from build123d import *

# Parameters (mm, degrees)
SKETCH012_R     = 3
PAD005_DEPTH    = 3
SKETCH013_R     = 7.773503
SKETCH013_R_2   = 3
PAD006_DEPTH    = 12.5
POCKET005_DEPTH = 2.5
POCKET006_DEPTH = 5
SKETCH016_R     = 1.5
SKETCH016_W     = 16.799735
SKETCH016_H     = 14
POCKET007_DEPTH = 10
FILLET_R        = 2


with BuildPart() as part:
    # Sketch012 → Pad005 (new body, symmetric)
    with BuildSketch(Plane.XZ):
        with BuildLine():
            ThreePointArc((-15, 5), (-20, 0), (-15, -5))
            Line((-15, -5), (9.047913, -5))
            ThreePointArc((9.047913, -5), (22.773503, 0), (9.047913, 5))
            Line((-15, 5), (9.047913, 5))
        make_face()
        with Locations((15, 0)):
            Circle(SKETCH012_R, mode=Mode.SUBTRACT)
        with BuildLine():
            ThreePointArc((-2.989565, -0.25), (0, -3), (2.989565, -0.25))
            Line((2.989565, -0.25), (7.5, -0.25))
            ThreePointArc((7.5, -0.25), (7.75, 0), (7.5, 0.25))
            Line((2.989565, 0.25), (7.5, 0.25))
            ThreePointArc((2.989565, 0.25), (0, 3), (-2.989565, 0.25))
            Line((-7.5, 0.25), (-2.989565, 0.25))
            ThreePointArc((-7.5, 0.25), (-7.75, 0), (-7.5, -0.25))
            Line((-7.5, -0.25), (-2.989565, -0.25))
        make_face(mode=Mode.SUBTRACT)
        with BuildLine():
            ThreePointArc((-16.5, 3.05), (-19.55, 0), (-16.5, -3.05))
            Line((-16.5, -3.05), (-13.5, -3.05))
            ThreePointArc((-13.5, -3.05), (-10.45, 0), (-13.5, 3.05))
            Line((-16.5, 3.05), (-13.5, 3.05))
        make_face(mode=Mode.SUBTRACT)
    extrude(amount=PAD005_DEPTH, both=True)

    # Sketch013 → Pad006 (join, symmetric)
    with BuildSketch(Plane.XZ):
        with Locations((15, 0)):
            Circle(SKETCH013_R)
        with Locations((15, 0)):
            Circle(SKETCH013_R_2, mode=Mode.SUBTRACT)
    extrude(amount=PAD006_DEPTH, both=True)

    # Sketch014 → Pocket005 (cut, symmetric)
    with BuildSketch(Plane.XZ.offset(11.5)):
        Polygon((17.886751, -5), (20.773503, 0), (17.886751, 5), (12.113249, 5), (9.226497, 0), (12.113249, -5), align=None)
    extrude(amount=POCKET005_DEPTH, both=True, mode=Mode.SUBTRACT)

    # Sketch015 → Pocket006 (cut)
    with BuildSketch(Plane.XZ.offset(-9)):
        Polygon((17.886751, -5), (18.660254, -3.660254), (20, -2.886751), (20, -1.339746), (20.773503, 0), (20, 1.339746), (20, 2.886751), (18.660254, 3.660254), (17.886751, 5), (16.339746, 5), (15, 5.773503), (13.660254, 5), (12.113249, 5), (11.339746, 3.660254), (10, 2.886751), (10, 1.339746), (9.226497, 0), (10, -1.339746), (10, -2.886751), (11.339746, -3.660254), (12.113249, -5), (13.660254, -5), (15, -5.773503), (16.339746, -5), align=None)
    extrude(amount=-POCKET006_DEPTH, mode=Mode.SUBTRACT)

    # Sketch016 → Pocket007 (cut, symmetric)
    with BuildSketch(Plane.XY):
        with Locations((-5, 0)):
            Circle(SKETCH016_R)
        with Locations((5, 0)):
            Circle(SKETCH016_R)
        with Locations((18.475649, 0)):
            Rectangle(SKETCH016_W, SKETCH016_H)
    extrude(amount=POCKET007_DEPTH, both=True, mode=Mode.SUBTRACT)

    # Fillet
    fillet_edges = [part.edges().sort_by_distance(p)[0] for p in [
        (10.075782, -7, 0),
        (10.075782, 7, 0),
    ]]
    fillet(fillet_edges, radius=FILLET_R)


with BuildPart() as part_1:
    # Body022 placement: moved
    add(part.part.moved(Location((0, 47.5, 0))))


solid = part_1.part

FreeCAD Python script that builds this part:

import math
import FreeCAD as App
import Part
import Sketcher
Q = App.Units.Quantity


def edges_at(feature, points):
    """Names of the edges that pass closest to the given points."""
    edges = feature.Shape.Edges
    near = lambda p: min(range(len(edges)), key=lambda i: edges[i].distToShape(Part.Vertex(*p))[0])
    return sorted({f"Edge{near(p) + 1}" for p in points})


def add_polygon(sketch, points):
    """Adds a closed chain of lines whose ends are joined by coincident constraints."""
    first, n = sketch.GeometryCount, len(points)
    for a, b in zip(points, points[1:] + points[:1]):
        sketch.addGeometry(Part.LineSegment(App.Vector(*a, 0), App.Vector(*b, 0)), False)
    for i in range(n):
        sketch.addConstraint(Sketcher.Constraint("Coincident", first + i, 2, first + (i + 1) % n, 1))

doc = App.newDocument("Part")
body = doc.addObject("PartDesign::Body", "Body")

# Sketch on XZ plane
sketch1 = doc.addObject("Sketcher::SketchObject", "Sketch")
body.addObject(sketch1)
sketch1.AttachmentSupport = (doc.XZ_Plane, [""])
sketch1.MapMode = "FlatFace"
sketch1.addGeometry(Part.ArcOfCircle(Part.Circle(App.Vector(-15, 0, 0), App.Vector(0, 0, 1), 5), math.radians(90), math.radians(270)), False)
sketch1.addGeometry(Part.LineSegment(App.Vector(-15, -5, 0), App.Vector(9.05, -5, 0)), False)
sketch1.addGeometry(Part.ArcOfCircle(Part.Circle(App.Vector(15, 0, 0), App.Vector(0, 0, 1), 7.77), math.radians(-140), math.radians(140)), False)
sketch1.addGeometry(Part.LineSegment(App.Vector(9.05, 5, 0), App.Vector(-15, 5, 0)), False)
sketch1.addGeometry(Part.ArcOfCircle(Part.Circle(App.Vector(0, 0, 0), App.Vector(0, 0, 1), 3), math.radians(-175), math.radians(-5)), False)
sketch1.addGeometry(Part.LineSegment(App.Vector(-2.99, -0.25, 0), App.Vector(-7.5, -0.25, 0)), False)
sketch1.addGeometry(Part.ArcOfCircle(Part.Circle(App.Vector(-7.5, 0, 0), App.Vector(0, 0, 1), 0.25), math.radians(90), math.radians(270)), False)
sketch1.addGeometry(Part.LineSegment(App.Vector(-7.5, 0.25, 0), App.Vector(-2.99, 0.25, 0)), False)
sketch1.addGeometry(Part.ArcOfCircle(Part.Circle(App.Vector(0, 0, 0), App.Vector(0, 0, 1), 3), math.radians(5), math.radians(175)), False)
sketch1.addGeometry(Part.LineSegment(App.Vector(2.99, 0.25, 0), App.Vector(7.5, 0.25, 0)), False)
sketch1.addGeometry(Part.ArcOfCircle(Part.Circle(App.Vector(7.5, 0, 0), App.Vector(0, 0, 1), 0.25), math.radians(-90), math.radians(90)), False)
sketch1.addGeometry(Part.LineSegment(App.Vector(7.5, -0.25, 0), App.Vector(2.99, -0.25, 0)), False)
sketch1.addGeometry(Part.ArcOfCircle(Part.Circle(App.Vector(-16.5, 0, 0), App.Vector(0, 0, 1), 3.05), math.radians(90), math.radians(270)), False)
sketch1.addGeometry(Part.LineSegment(App.Vector(-16.5, 3.05, 0), App.Vector(-13.5, 3.05, 0)), False)
sketch1.addGeometry(Part.ArcOfCircle(Part.Circle(App.Vector(-13.5, 0, 0), App.Vector(0, 0, 1), 3.05), math.radians(-90), math.radians(90)), False)
sketch1.addGeometry(Part.LineSegment(App.Vector(-13.5, -3.05, 0), App.Vector(-16.5, -3.05, 0)), False)
sketch1.addGeometry(Part.Circle(App.Vector(15, 0, 0), App.Vector(0, 0, 1), 3), False)
sketch1.addConstraint(Sketcher.Constraint("Tangent", 0, 2, 1, 1))
sketch1.addConstraint(Sketcher.Constraint("Coincident", 1, 2, 2, 1))
sketch1.addConstraint(Sketcher.Constraint("Coincident", 2, 2, 3, 1))
sketch1.addConstraint(Sketcher.Constraint("Tangent", 3, 2, 0, 1))
sketch1.addConstraint(Sketcher.Constraint("Coincident", 4, 1, 5, 1))
sketch1.addConstraint(Sketcher.Constraint("Tangent", 5, 2, 6, 2))
sketch1.addConstraint(Sketcher.Constraint("Tangent", 6, 1, 7, 1))
sketch1.addConstraint(Sketcher.Constraint("Coincident", 7, 2, 8, 2))
sketch1.addConstraint(Sketcher.Constraint("Coincident", 8, 1, 9, 1))
sketch1.addConstraint(Sketcher.Constraint("Tangent", 9, 2, 10, 2))
sketch1.addConstraint(Sketcher.Constraint("Tangent", 10, 1, 11, 1))
sketch1.addConstraint(Sketcher.Constraint("Coincident", 11, 2, 4, 2))
sketch1.addConstraint(Sketcher.Constraint("Tangent", 12, 1, 13, 1))
sketch1.addConstraint(Sketcher.Constraint("Tangent", 13, 2, 14, 2))
sketch1.addConstraint(Sketcher.Constraint("Tangent", 14, 1, 15, 1))
sketch1.addConstraint(Sketcher.Constraint("Tangent", 15, 2, 12, 2))
sketch1.addConstraint(Sketcher.Constraint("Horizontal", 1))
sketch1.addConstraint(Sketcher.Constraint("Horizontal", 3))
sketch1.addConstraint(Sketcher.Constraint("Horizontal", 5))
sketch1.addConstraint(Sketcher.Constraint("Horizontal", 7))
sketch1.addConstraint(Sketcher.Constraint("Horizontal", 9))
sketch1.addConstraint(Sketcher.Constraint("Horizontal", 11))
sketch1.addConstraint(Sketcher.Constraint("Horizontal", 13))
sketch1.addConstraint(Sketcher.Constraint("Horizontal", 15))
sketch1.addConstraint(Sketcher.Constraint("Coincident", 4, 3, -1, 1))
sketch1.addConstraint(Sketcher.Constraint("Coincident", 8, 3, -1, 1))
sketch1.addConstraint(Sketcher.Constraint("Coincident", 16, 3, 2, 3))
sketch1.addConstraint(Sketcher.Constraint("Equal", 4, 8))
sketch1.addConstraint(Sketcher.Constraint("Equal", 6, 10))
sketch1.addConstraint(Sketcher.Constraint("Equal", 8, 16))
sketch1.addConstraint(Sketcher.Constraint("Symmetric", 0, 3, 2, 3, -1, 1))
sketch1.addConstraint(Sketcher.Constraint("Symmetric", 6, 3, 10, 3, -1, 1))
sketch1.addConstraint(Sketcher.Constraint("PointOnObject", 0, 3, -1))
sketch1.addConstraint(Sketcher.Constraint("PointOnObject", 6, 3, -1))
sketch1.addConstraint(Sketcher.Constraint("PointOnObject", 12, 3, -1))
sketch1.addConstraint(Sketcher.Constraint("Diameter", 16, Q("6 mm")))
sketch1.addConstraint(Sketcher.Constraint("Radius", 0, Q("5 mm")))
sketch1.addConstraint(Sketcher.Constraint("DistanceX", 13, 1, 13, 2, Q("3 mm")))
sketch1.addConstraint(Sketcher.Constraint("Radius", 6, Q("0.25 mm")))
sketch1.addConstraint(Sketcher.Constraint("Radius", 12, Q("3.05 mm")))
sketch1.addConstraint(Sketcher.Constraint("DistanceX", 0, 3, -1, 1, Q("15 mm")))
sketch1.addConstraint(Sketcher.Constraint("DistanceX", 6, 3, 10, 3, Q("15 mm")))
sketch1.addConstraint(Sketcher.Constraint("DistanceX", 12, 3, 6, 3, Q("9 mm")))
sketch1.addConstraint(Sketcher.Constraint("Radius", 2, Q("7.773503 mm")))
pad1 = doc.addObject("PartDesign::Pad", "Pad")
body.addObject(pad1)
pad1.Profile = sketch1
pad1.Length = 6
pad1.Midplane = True

# Sketch on XZ plane
sketch2 = doc.addObject("Sketcher::SketchObject", "Sketch001")
body.addObject(sketch2)
sketch2.AttachmentSupport = (doc.XZ_Plane, [""])
sketch2.MapMode = "FlatFace"
sketch2.addGeometry(Part.Circle(App.Vector(15, 0, 0), App.Vector(0, 0, 1), 7.8), False)
sketch2.addGeometry(Part.Circle(App.Vector(15, 0, 0), App.Vector(0, 0, 1), 3), False)
sketch2.addConstraint(Sketcher.Constraint("Coincident", 1, 3, 0, 3))
sketch2.addConstraint(Sketcher.Constraint("PointOnObject", 0, 3, -1))
sketch2.addConstraint(Sketcher.Constraint("Diameter", 1, Q("6 mm")))
sketch2.addConstraint(Sketcher.Constraint("DistanceX", -1, 1, 0, 3, Q("15 mm")))
sketch2.addConstraint(Sketcher.Constraint("Diameter", 0, Q("15.547006 mm")))
pad2 = doc.addObject("PartDesign::Pad", "Pad001")
body.addObject(pad2)
pad2.Profile = sketch2
pad2.Length = 25
pad2.Midplane = True

# Sketch on XZ plane
sketch3 = doc.addObject("Sketcher::SketchObject", "Sketch002")
body.addObject(sketch3)
sketch3.AttachmentSupport = (doc.XZ_Plane, [""])
sketch3.MapMode = "FlatFace"
sketch3.AttachmentOffset = App.Placement(App.Vector(0, 0, 11.5), App.Rotation())
add_polygon(sketch3, [(18, -5), (21, 0), (18, 5), (12, 5), (9, 0), (12, -5)])  # lines 0-5
sketch3.addConstraint(Sketcher.Constraint("Horizontal", 2))
sketch3.addConstraint(Sketcher.Constraint("Horizontal", 5))
sketch3.addConstraint(Sketcher.Constraint("Symmetric", 2, 2, 4, 2, -1))
sketch3.addConstraint(Sketcher.Constraint("PointOnObject", 0, 2, -1))
sketch3.addConstraint(Sketcher.Constraint("PointOnObject", 3, 2, -1))
sketch3.addConstraint(Sketcher.Constraint("Parallel", 0, 3))
sketch3.addConstraint(Sketcher.Constraint("Parallel", 1, 4))
sketch3.addConstraint(Sketcher.Constraint("Angle", 0, Q("59.999994 deg")))
sketch3.addConstraint(Sketcher.Constraint("DistanceY", -1, 1, 1, 2, Q("5 mm")))
sketch3.addConstraint(Sketcher.Constraint("DistanceX", 2, 2, 2, 1, Q("5.773502 mm")))
sketch3.addConstraint(Sketcher.Constraint("DistanceX", -1, 1, 1, 2, Q("17.886751 mm")))
pocket1 = doc.addObject("PartDesign::Pocket", "Pocket")
body.addObject(pocket1)
pocket1.Profile = sketch3
pocket1.Length = 5
pocket1.Midplane = True

# Sketch on XZ plane
sketch4 = doc.addObject("Sketcher::SketchObject", "Sketch003")
body.addObject(sketch4)
sketch4.AttachmentSupport = (doc.XZ_Plane, [""])
sketch4.MapMode = "FlatFace"
sketch4.AttachmentOffset = App.Placement(App.Vector(0, 0, -9), App.Rotation())
add_polygon(sketch4, [(17.9, -5), (18.7, -3.7), (20, -2.9), (20, -1.3), (20.8, 0), (20, 1.3), (20, 2.9), (18.7, 3.7), (17.9, 5), (16.3, 5), (15, 5.8), (13.7, 5), (12.1, 5), (11.3, 3.7), (10, 2.9), (10, 1.3), (9.2, 0), (10, -1.3), (10, -2.9), (11.3, -3.7), (12.1, -5), (13.7, -5), (15, -5.8), (16.3, -5)])  # lines 0-23
sketch4.addConstraint(Sketcher.Constraint("Vertical", 2))
sketch4.addConstraint(Sketcher.Constraint("Vertical", 5))
sketch4.addConstraint(Sketcher.Constraint("Horizontal", 8))
sketch4.addConstraint(Sketcher.Constraint("Horizontal", 11))
sketch4.addConstraint(Sketcher.Constraint("Vertical", 14))
sketch4.addConstraint(Sketcher.Constraint("Vertical", 17))
sketch4.addConstraint(Sketcher.Constraint("Horizontal", 20))
sketch4.addConstraint(Sketcher.Constraint("Horizontal", 23))
sketch4.addConstraint(Sketcher.Constraint("Symmetric", 2, 2, 4, 2, -1))
sketch4.addConstraint(Sketcher.Constraint("Symmetric", 0, 2, 6, 2, -1))
sketch4.addConstraint(Sketcher.Constraint("Symmetric", 14, 2, 16, 2, -1))
sketch4.addConstraint(Sketcher.Constraint("Symmetric", 12, 2, 18, 2, -1))
sketch4.addConstraint(Sketcher.Constraint("Symmetric", 11, 2, 19, 2, -1))
sketch4.addConstraint(Sketcher.Constraint("Symmetric", 9, 2, 21, 2, -1))
sketch4.addConstraint(Sketcher.Constraint("Symmetric", 8, 2, 22, 2, -1))
sketch4.addConstraint(Sketcher.Constraint("PointOnObject", 3, 2, -1))
sketch4.addConstraint(Sketcher.Constraint("PointOnObject", 15, 2, -1))
sketch4.addConstraint(Sketcher.Constraint("Parallel", 0, 3))
sketch4.addConstraint(Sketcher.Constraint("Perpendicular", 1, 4))
sketch4.addConstraint(Sketcher.Constraint("Perpendicular", 3, 6))
sketch4.addConstraint(Sketcher.Constraint("Parallel", 4, 7))
sketch4.addConstraint(Sketcher.Constraint("Parallel", 6, 9))
sketch4.addConstraint(Sketcher.Constraint("Perpendicular", 7, 10))
sketch4.addConstraint(Sketcher.Constraint("Perpendicular", 9, 12))
sketch4.addConstraint(Sketcher.Constraint("Parallel", 10, 13))
sketch4.addConstraint(Sketcher.Constraint("Parallel", 12, 15))
sketch4.addConstraint(Sketcher.Constraint("Perpendicular", 15, 18))
sketch4.addConstraint(Sketcher.Constraint("Parallel", 18, 21))
sketch4.addConstraint(Sketcher.Constraint("Horizontal", 8, 2, 10, 2))
sketch4.addConstraint(Sketcher.Constraint("Horizontal", 6, 2, 12, 2))
sketch4.addConstraint(Sketcher.Constraint("Horizontal", 5, 2, 13, 2))
sketch4.addConstraint(Sketcher.Constraint("Horizontal", 4, 2, 14, 2))
sketch4.addConstraint(Sketcher.Constraint("Equal", 8, 11))
sketch4.addConstraint(Sketcher.Constraint("Equal", 23, 2))
sketch4.addConstraint(Sketcher.Constraint("Equal", 0, 1))
sketch4.addConstraint(Sketcher.Constraint("Equal", 1, 3))
sketch4.addConstraint(Sketcher.Constraint("Equal", 7, 9))
sketch4.addConstraint(Sketcher.Constraint("Angle", 0, Q("59.999991 deg")))
sketch4.addConstraint(Sketcher.Constraint("DistanceX", -1, 1, 1, 2, Q("20 mm")))
sketch4.addConstraint(Sketcher.Constraint("DistanceY", -1, 1, 7, 2, Q("5 mm")))
sketch4.addConstraint(Sketcher.Constraint("DistanceY", 1, 2, 5, 2, Q("5.773502 mm")))
pocket2 = doc.addObject("PartDesign::Pocket", "Pocket001")
body.addObject(pocket2)
pocket2.Profile = sketch4
pocket2.Length = 5

# Sketch on XY plane
sketch5 = doc.addObject("Sketcher::SketchObject", "Sketch004")
body.addObject(sketch5)
sketch5.AttachmentSupport = (doc.XY_Plane, [""])
sketch5.MapMode = "FlatFace"
sketch5.addGeometry(Part.Circle(App.Vector(-5, 0, 0), App.Vector(0, 0, 1), 1.5), False)  # 0
sketch5.addGeometry(Part.Circle(App.Vector(5, 0, 0), App.Vector(0, 0, 1), 1.5), False)  # 1
add_polygon(sketch5, [(10.1, 7), (10.1, -7), (26.9, -7), (26.9, 7)])  # lines 2-5
sketch5.addConstraint(Sketcher.Constraint("Vertical", 2))
sketch5.addConstraint(Sketcher.Constraint("Horizontal", 3))
sketch5.addConstraint(Sketcher.Constraint("Vertical", 4))
sketch5.addConstraint(Sketcher.Constraint("Horizontal", 5))
sketch5.addConstraint(Sketcher.Constraint("Equal", 0, 1))
sketch5.addConstraint(Sketcher.Constraint("Symmetric", 0, 3, 1, 3, -1, 1))
sketch5.addConstraint(Sketcher.Constraint("PointOnObject", 0, 3, -1))
sketch5.addConstraint(Sketcher.Constraint("Diameter", 0, Q("3 mm")))
sketch5.addConstraint(Sketcher.Constraint("DistanceY", 2, 2, 2, 1, Q("14 mm")))
sketch5.addConstraint(Sketcher.Constraint("DistanceX", 0, 3, -1, 1, Q("5 mm")))
sketch5.addConstraint(Sketcher.Constraint("DistanceY", 2, 2, -1, 1, Q("7 mm")))
sketch5.addConstraint(Sketcher.Constraint("DistanceX", 3, 1, 3, 2, Q("16.799735 mm")))
sketch5.addConstraint(Sketcher.Constraint("DistanceX", -1, 1, 2, 2, Q("10.075781 mm")))
pocket3 = doc.addObject("PartDesign::Pocket", "Pocket002")
body.addObject(pocket3)
pocket3.Profile = sketch5
pocket3.Length = 20
pocket3.Midplane = True
doc.recompute()

fillet = doc.addObject("PartDesign::Fillet", "Fillet")
body.addObject(fillet)
fillet.Base = (pocket3, edges_at(pocket3, [(10.076, -7, 0), (10.076, 7, 0)]))
fillet.Radius = 2
body2 = doc.addObject("PartDesign::Body", "Body001")
doc.recompute()

body.Placement = App.Placement(App.Vector(0, 47.5, 0), App.Rotation(App.Vector(0, 0, 1), 0))
boolean = doc.addObject("PartDesign::Boolean", "Boolean")
body2.addObject(boolean)
boolean.Type = "Fuse"
boolean.addObjects([body])

doc.recompute()
